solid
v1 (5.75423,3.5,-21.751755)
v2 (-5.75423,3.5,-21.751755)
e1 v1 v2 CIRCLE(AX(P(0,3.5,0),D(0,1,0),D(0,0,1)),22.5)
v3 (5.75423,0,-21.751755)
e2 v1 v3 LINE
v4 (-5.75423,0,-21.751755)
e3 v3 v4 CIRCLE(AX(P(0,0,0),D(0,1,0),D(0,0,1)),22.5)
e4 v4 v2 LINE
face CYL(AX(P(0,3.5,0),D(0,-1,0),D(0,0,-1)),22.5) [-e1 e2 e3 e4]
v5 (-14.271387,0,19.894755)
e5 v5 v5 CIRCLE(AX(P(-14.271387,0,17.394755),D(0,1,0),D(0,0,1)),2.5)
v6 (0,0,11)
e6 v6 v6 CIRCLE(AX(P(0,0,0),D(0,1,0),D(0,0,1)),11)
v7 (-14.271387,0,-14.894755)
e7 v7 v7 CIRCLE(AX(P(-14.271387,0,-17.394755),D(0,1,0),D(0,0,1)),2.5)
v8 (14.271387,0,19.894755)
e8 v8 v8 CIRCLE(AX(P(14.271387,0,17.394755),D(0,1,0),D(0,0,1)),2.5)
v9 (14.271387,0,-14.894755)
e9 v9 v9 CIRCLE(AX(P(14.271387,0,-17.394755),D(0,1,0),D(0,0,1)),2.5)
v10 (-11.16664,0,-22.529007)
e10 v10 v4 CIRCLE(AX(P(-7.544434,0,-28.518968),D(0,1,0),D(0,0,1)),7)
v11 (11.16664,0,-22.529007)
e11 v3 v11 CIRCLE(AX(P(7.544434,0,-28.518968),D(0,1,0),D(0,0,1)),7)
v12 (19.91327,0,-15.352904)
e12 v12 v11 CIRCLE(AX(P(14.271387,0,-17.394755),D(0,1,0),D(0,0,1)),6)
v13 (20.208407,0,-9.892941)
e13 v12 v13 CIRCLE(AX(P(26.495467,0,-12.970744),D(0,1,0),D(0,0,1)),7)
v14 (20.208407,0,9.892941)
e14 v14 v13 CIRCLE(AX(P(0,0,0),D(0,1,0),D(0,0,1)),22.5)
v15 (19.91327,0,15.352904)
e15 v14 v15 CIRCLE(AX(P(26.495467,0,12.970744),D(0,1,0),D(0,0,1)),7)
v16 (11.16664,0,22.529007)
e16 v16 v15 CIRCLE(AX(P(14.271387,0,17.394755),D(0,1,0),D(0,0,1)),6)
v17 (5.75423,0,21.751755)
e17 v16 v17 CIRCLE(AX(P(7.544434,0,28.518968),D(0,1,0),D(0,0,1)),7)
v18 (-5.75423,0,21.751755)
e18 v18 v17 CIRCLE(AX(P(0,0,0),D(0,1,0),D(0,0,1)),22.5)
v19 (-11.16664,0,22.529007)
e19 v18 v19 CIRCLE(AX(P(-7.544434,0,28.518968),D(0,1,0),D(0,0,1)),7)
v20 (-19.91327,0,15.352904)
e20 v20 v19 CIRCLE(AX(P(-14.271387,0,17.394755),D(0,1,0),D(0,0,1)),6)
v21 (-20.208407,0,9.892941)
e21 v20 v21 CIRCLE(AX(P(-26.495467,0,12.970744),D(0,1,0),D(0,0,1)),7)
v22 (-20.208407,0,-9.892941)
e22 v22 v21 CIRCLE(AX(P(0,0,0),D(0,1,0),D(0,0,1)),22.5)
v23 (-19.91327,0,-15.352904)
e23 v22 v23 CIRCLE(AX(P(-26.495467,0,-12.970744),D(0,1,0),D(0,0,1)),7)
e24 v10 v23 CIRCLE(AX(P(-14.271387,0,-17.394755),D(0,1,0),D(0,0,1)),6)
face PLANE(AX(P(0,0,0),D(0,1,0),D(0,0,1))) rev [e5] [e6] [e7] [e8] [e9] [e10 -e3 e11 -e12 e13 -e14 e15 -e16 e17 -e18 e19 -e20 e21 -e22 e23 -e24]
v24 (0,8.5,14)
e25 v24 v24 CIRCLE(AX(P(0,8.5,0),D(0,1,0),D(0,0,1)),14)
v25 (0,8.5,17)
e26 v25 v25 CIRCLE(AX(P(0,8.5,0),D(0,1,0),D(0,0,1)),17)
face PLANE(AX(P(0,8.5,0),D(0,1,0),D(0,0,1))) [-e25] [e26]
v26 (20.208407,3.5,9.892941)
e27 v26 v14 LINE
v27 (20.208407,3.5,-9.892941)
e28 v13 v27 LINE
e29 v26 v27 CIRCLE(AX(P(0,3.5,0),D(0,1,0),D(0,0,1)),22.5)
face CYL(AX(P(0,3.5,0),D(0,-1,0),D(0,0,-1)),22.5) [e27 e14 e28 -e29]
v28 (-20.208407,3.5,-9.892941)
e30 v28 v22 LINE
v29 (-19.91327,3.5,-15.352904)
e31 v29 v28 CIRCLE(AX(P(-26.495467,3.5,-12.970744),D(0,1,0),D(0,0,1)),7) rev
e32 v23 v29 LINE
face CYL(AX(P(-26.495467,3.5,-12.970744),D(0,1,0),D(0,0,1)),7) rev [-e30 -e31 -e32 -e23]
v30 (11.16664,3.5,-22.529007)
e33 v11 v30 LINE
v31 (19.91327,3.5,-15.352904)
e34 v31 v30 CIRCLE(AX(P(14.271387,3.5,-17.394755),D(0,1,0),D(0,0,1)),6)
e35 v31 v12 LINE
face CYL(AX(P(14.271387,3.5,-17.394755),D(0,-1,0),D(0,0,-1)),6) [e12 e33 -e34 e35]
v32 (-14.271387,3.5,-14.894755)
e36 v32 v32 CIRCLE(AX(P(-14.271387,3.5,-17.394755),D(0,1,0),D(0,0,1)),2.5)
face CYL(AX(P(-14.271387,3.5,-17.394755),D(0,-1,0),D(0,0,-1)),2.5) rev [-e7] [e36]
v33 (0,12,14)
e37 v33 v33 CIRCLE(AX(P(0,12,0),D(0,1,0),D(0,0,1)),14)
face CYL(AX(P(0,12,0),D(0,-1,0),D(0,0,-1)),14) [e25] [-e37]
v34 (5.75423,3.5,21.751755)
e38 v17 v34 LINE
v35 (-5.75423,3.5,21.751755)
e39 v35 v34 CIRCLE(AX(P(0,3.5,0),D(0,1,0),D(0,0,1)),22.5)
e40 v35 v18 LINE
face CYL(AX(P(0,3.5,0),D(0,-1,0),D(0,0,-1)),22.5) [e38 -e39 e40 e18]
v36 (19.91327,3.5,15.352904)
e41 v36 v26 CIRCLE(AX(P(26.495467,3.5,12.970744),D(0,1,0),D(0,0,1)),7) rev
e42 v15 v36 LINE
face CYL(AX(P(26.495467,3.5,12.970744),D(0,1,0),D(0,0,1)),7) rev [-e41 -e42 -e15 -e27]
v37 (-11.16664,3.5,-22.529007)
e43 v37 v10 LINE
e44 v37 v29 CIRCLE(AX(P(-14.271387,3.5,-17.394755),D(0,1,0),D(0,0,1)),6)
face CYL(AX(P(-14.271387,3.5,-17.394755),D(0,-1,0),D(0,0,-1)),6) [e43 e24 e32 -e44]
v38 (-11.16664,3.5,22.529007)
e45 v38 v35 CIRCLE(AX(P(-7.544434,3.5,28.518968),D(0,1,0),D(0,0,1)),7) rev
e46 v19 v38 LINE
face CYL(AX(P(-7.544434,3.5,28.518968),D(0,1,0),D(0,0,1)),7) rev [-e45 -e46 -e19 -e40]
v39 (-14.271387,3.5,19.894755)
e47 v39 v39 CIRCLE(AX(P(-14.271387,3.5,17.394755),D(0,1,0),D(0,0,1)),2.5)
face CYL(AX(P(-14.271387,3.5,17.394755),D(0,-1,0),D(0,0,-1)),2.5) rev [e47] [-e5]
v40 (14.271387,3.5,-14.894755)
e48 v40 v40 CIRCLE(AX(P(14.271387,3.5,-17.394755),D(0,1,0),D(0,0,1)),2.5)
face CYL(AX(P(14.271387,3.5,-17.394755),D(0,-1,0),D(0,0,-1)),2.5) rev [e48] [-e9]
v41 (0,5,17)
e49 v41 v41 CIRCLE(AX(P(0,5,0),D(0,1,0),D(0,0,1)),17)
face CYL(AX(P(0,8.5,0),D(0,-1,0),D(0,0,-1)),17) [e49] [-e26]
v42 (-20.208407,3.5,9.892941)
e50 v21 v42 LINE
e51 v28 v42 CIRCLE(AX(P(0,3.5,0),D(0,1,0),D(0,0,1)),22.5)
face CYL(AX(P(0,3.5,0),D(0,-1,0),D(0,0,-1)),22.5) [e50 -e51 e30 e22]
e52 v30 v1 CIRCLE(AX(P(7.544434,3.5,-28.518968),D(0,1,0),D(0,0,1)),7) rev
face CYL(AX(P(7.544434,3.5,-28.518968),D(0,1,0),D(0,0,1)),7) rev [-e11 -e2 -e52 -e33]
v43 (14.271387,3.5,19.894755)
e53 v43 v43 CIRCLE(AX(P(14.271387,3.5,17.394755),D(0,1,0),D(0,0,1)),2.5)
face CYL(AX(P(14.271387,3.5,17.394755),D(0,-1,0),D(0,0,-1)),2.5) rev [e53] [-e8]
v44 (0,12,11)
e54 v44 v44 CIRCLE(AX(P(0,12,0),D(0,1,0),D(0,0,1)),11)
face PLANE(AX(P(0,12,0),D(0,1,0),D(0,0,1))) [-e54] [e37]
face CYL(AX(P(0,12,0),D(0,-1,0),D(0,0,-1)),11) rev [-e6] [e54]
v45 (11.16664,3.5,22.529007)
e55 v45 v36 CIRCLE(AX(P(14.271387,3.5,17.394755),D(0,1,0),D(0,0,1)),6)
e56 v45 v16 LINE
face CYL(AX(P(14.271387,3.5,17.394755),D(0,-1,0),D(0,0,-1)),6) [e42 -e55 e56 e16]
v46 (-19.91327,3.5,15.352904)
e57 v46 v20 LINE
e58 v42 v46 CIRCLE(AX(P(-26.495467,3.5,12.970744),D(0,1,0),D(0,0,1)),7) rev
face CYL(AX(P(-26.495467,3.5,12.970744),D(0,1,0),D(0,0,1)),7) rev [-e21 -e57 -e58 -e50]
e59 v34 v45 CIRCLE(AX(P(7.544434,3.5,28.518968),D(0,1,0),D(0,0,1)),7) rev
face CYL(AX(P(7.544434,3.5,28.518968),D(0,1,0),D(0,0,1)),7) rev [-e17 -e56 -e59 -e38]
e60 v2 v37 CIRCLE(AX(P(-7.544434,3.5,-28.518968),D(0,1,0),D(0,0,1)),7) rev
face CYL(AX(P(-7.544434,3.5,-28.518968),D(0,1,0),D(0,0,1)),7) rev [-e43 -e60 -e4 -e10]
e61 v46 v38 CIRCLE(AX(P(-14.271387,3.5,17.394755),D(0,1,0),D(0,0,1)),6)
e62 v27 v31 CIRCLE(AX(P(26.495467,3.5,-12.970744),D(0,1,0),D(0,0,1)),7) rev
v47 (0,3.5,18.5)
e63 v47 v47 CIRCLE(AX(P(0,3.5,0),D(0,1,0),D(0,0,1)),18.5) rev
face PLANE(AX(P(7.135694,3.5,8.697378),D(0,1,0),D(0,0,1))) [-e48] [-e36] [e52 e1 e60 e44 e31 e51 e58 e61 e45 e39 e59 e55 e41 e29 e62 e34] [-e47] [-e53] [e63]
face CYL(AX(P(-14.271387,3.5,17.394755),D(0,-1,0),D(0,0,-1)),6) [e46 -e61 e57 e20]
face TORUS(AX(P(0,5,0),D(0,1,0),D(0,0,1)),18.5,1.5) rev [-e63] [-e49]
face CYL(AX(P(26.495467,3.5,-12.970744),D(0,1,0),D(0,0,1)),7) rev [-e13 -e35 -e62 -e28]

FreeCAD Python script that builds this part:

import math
import FreeCAD as App
import Part
import Sketcher
Q = App.Units.Quantity


def edges_at(feature, points):
    """Names of the edges that pass closest to the given points."""
    edges = feature.Shape.Edges
    near = lambda p: min(range(len(edges)), key=lambda i: edges[i].distToShape(Part.Vertex(*p))[0])
    return sorted({f"Edge{near(p) + 1}" for p in points})

doc = App.newDocument("Part")
body = doc.addObject("PartDesign::Body", "Body")

# Sketch on XZ plane
sketch1 = body.newObject("Sketcher::SketchObject", "Sketch")
sketch1.AttachmentSupport = (doc.getObject("XZ_Plane"), [""])
sketch1.MapMode = "FlatFace"
sketch1.addGeometry([
    Part.Circle(App.Vector(0, 0, 0), App.Vector(0, 0, 1), 14),
    Part.Circle(App.Vector(0, 0, 0), App.Vector(0, 0, 1), 11),
], False)
sketch1.addConstraint([
    Sketcher.Constraint("Coincident", 0, 3, -1, 1),
    Sketcher.Constraint("Coincident", 1, 3, -1, 1),
    Sketcher.Constraint("Diameter", 0, Q("28 mm")),
    Sketcher.Constraint("Diameter", 1, Q("22 mm")),
])
pad1 = body.newObject("PartDesign::Pad", "Pad")
pad1.Profile = sketch1
pad1.Length = 12
pad1.Reversed = True

# Sketch on XZ plane
sketch2 = body.newObject("Sketcher::SketchObject", "Sketch001")
sketch2.AttachmentSupport = (doc.getObject("XZ_Plane"), [""])
sketch2.MapMode = "FlatFace"
sketch2.addGeometry([
    Part.Circle(App.Vector(0, 0, 0), App.Vector(0, 0, 1), 17),
    Part.Circle(App.Vector(0, 0, 0), App.Vector(0, 0, 1), 14),
], False)
sketch2.addConstraint([
    Sketcher.Constraint("Coincident", 0, 3, -1, 1),
    Sketcher.Constraint("Coincident", 1, 3, -1, 1),
    Sketcher.Constraint("Diameter", 0, Q("34 mm")),
    Sketcher.Constraint("Diameter", 1, Q("28 mm")),
])
pad2 = body.newObject("PartDesign::Pad", "Pad001")
pad2.Profile = sketch2
pad2.Length = 8.5
pad2.Reversed = True

# Sketch on XZ plane
sketch3 = body.newObject("Sketcher::SketchObject", "Sketch002")
sketch3.AttachmentSupport = (doc.getObject("XZ_Plane"), [""])
sketch3.MapMode = "FlatFace"
sketch3.addGeometry([
    Part.ArcOfCircle(Part.Circle(App.Vector(0, 0, 0), App.Vector(0, 0, 1), 22.5), math.radians(145), math.radians(215)),  # 0
    Part.ArcOfCircle(Part.Circle(App.Vector(-14.3, 17.4, 0), App.Vector(0, 0, 1), 6), math.radians(32), math.radians(227)),  # 1
    Part.ArcOfCircle(Part.Circle(App.Vector(0, 0, 0), App.Vector(0, 0, 1), 22.5), math.radians(66), math.radians(114)),  # 2
    Part.ArcOfCircle(Part.Circle(App.Vector(14.3, 17.4, 0), App.Vector(0, 0, 1), 6), math.radians(-47), math.radians(148)),  # 3
    Part.ArcOfCircle(Part.Circle(App.Vector(0, 0, 0), App.Vector(0, 0, 1), 22.5), math.radians(-35), math.radians(35)),  # 4
    Part.ArcOfCircle(Part.Circle(App.Vector(14.3, -17.4, 0), App.Vector(0, 0, 1), 6), math.radians(-148), math.radians(47)),  # 5
    Part.ArcOfCircle(Part.Circle(App.Vector(0, 0, 0), App.Vector(0, 0, 1), 22.5), math.radians(-114), math.radians(-66)),  # 6
    Part.ArcOfCircle(Part.Circle(App.Vector(-14.3, -17.4, 0), App.Vector(0, 0, 1), 6), math.radians(133), math.radians(328)),  # 7
    Part.Circle(App.Vector(-14.3, 17.4, 0), App.Vector(0, 0, 1), 2.5),  # 8
    Part.Circle(App.Vector(14.3, 17.4, 0), App.Vector(0, 0, 1), 2.5),  # 9
    Part.Circle(App.Vector(-14.3, -17.4, 0), App.Vector(0, 0, 1), 2.5),  # 10
    Part.Circle(App.Vector(0, 0, 0), App.Vector(0, 0, 1), 17),  # 11
    Part.Circle(App.Vector(14.3, -17.4, 0), App.Vector(0, 0, 1), 2.5),  # 12
], False)
sketch3.addConstraint([
    Sketcher.Constraint("Coincident", 0, 1, 1, 2),
    Sketcher.Constraint("Coincident", 1, 1, 2, 2),
    Sketcher.Constraint("Coincident", 2, 1, 3, 2),
    Sketcher.Constraint("Coincident", 3, 1, 4, 2),
    Sketcher.Constraint("Coincident", 4, 1, 5, 2),
    Sketcher.Constraint("Coincident", 5, 1, 6, 2),
    Sketcher.Constraint("Coincident", 6, 1, 7, 2),
    Sketcher.Constraint("Coincident", 7, 1, 0, 2),
    Sketcher.Constraint("Coincident", 0, 3, -1, 1),
    Sketcher.Constraint("Coincident", 2, 3, -1, 1),
    Sketcher.Constraint("Coincident", 4, 3, -1, 1),
    Sketcher.Constraint("Coincident", 6, 3, -1, 1),
    Sketcher.Constraint("Coincident", 11, 3, -1, 1),
    Sketcher.Constraint("Coincident", 8, 3, 1, 3),
    Sketcher.Constraint("Coincident", 9, 3, 3, 3),
    Sketcher.Constraint("Coincident", 10, 3, 7, 3),
    Sketcher.Constraint("Coincident", 12, 3, 5, 3),
    Sketcher.Constraint("Equal", 0, 2),
    Sketcher.Constraint("Equal", 1, 3),
    Sketcher.Constraint("Equal", 2, 4),
    Sketcher.Constraint("Equal", 3, 5),
    Sketcher.Constraint("Equal", 4, 6),
    Sketcher.Constraint("Equal", 5, 7),
    Sketcher.Constraint("Equal", 8, 9),
    Sketcher.Constraint("Equal", 9, 10),
    Sketcher.Constraint("Equal", 10, 12),
    Sketcher.Constraint("Symmetric", 1, 3, 5, 3, -1, 1),
    Sketcher.Constraint("Symmetric", 3, 3, 7, 3, -1, 1),
    Sketcher.Constraint("Symmetric", 1, 3, 3, 3, -2),
    Sketcher.Constraint("Diameter", 8, Q("5 mm")),
    Sketcher.Constraint("Diameter", 11, Q("34 mm")),
    Sketcher.Constraint("Radius", 1, Q("6 mm")),
    Sketcher.Constraint("Radius", 0, Q("22.5 mm")),
    Sketcher.Constraint("DistanceY", -1, 1, 0, 1, Q("13.004552 mm")),
    Sketcher.Constraint("DistanceY", 5, 3, 3, 3, Q("34.78951 mm")),
])
pad3 = body.newObject("PartDesign::Pad", "Pad002")
pad3.Profile = sketch3
pad3.Length = 3.5
pad3.Reversed = True
doc.recompute()

fillet = body.newObject("PartDesign::Fillet", "Fillet")
fillet.Base = (pad3, edges_at(pad3, [(0, 3.5, -17)]))
fillet.Radius = 1.5
doc.recompute()

fillet2 = body.newObject("PartDesign::Fillet", "Fillet001")
fillet2.Base = (fillet, edges_at(fillet, [
    (-9.167, 1.75, 20.548),
    (9.167, 1.75, 20.548),
    (18.361, 1.75, 13.005),
    (18.361, 1.75, -13.005),
    (9.167, 1.75, -20.548),
    (-9.167, 1.75, -20.548),
    (-18.361, 1.75, -13.005),
    (-18.361, 1.75, 13.005),
]))
fillet2.Radius = 7

doc.recompute()
